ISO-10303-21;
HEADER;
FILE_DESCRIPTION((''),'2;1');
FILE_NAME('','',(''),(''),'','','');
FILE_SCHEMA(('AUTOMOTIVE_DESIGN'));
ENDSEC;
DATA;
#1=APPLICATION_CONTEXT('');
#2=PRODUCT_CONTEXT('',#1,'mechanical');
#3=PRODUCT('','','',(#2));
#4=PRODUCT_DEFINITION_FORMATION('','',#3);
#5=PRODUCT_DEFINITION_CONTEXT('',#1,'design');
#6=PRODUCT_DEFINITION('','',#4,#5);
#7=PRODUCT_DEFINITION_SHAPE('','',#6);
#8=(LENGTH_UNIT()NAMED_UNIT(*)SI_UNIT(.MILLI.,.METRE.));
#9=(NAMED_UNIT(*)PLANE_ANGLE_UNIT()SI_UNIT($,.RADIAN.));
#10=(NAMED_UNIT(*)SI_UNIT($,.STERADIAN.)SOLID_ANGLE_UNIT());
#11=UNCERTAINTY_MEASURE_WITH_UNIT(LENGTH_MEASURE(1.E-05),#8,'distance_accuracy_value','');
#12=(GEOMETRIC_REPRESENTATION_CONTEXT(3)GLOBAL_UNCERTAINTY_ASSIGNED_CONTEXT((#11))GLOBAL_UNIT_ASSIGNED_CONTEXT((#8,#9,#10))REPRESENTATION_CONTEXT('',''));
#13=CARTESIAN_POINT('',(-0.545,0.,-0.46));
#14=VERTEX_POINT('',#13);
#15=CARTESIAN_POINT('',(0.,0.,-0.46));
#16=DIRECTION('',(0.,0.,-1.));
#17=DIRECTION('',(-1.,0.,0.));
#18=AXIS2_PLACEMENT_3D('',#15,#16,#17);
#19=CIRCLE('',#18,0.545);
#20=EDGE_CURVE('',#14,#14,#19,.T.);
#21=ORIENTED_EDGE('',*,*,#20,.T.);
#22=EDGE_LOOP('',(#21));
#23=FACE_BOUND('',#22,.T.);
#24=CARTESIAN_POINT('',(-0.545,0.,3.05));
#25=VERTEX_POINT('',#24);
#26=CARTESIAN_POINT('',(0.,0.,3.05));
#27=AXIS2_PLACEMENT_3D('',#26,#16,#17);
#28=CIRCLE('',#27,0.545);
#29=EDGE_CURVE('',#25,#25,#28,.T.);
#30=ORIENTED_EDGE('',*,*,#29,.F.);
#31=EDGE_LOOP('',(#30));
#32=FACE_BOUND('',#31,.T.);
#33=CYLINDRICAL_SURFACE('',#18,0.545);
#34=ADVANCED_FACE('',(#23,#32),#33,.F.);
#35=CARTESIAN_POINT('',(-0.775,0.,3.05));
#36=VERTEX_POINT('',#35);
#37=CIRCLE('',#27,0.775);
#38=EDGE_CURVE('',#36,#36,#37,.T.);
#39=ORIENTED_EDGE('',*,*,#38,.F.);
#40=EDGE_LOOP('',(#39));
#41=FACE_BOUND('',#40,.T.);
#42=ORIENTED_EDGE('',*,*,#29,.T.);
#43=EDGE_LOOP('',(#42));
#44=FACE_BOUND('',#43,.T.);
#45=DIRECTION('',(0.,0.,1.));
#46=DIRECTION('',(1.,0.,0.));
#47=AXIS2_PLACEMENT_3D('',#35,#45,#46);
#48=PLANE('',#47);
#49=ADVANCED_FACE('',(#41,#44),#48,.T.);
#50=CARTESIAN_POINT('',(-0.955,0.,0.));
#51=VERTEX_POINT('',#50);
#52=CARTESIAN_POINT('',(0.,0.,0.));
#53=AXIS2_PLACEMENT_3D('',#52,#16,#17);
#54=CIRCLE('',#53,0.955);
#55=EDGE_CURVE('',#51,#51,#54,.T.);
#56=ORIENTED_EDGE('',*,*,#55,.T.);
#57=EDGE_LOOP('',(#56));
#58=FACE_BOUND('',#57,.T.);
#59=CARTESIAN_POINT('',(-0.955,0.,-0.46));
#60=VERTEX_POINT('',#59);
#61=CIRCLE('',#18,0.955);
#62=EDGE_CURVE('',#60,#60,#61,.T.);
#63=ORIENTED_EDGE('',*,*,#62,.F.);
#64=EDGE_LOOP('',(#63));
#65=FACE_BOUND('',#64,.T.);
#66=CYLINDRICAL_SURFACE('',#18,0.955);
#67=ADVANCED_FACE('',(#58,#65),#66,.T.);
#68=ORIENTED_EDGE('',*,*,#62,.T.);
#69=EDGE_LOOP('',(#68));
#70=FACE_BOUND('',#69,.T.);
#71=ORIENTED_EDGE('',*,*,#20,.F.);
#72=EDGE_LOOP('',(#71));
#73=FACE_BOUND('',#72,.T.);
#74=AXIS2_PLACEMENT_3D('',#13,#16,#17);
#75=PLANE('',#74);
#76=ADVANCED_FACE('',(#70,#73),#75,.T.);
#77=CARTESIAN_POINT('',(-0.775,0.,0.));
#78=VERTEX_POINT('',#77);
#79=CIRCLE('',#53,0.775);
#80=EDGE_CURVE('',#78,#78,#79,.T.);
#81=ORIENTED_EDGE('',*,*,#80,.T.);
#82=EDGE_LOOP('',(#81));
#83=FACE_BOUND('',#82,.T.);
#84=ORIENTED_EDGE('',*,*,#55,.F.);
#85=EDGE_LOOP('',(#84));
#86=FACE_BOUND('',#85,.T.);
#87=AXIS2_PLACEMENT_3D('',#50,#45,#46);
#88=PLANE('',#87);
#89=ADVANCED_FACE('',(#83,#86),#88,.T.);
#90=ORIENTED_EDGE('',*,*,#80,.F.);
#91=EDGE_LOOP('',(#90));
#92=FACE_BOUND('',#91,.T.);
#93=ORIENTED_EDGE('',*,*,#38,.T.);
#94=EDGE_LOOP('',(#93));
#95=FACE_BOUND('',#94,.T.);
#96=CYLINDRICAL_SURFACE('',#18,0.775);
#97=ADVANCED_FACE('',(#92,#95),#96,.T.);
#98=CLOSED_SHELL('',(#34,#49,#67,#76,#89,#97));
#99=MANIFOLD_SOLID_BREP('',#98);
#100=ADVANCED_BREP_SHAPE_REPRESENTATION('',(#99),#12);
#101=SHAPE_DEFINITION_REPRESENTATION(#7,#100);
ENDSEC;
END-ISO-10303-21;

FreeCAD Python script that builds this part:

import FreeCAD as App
import Part
import Sketcher

doc = App.newDocument("Part")
params = doc.addObject("Spreadsheet::Sheet", "Params")
for row, (alias, value) in enumerate([
    ("sketch1_width", "0.41 mm"),
    ("sketch1_width2", "0.18 mm"),
    ("sketch1_height", "0.46 mm"),
    ("sketch1_height2", "3.05 mm"),
    ("revolution_angle", "360 deg"),
], start=1):
    params.set(f"A{row}", alias)
    params.set(f"B{row}", "=" + value)
    params.setAlias(f"B{row}", alias)

body = doc.addObject("PartDesign::Body", "Body")

sketch1 = body.newObject("Sketcher::SketchObject", "Sketch")
sketch1.AttachmentSupport = (doc.getObject("XZ_Plane"), [""])
sketch1.MapMode = "FlatFace"
sketch1.addGeometry([
    Part.LineSegment(App.Vector(-0.545, -0.46, 0), App.Vector(-0.955, -0.46, 0)),
    Part.LineSegment(App.Vector(-0.955, -0.46, 0), App.Vector(-0.955, 0, 0)),
    Part.LineSegment(App.Vector(-0.955, 0, 0), App.Vector(-0.775, 0, 0)),
    Part.LineSegment(App.Vector(-0.775, 0, 0), App.Vector(-0.775, 3.05, 0)),
    Part.LineSegment(App.Vector(-0.775, 3.05, 0), App.Vector(-0.545, 3.05, 0)),
    Part.LineSegment(App.Vector(-0.545, 3.05, 0), App.Vector(-0.545, -0.46, 0)),
], False)
sketch1.addConstraint([
    Sketcher.Constraint("Coincident", 0, 2, 1, 1),
    Sketcher.Constraint("Coincident", 1, 2, 2, 1),
    Sketcher.Constraint("Coincident", 2, 2, 3, 1),
    Sketcher.Constraint("Coincident", 3, 2, 4, 1),
    Sketcher.Constraint("Coincident", 4, 2, 5, 1),
    Sketcher.Constraint("Coincident", 5, 2, 0, 1),
    Sketcher.Constraint("Horizontal", 0),
    Sketcher.Constraint("Vertical", 1),
    Sketcher.Constraint("Horizontal", 2),
    Sketcher.Constraint("Vertical", 3),
    Sketcher.Constraint("Horizontal", 4),
    Sketcher.Constraint("Vertical", 5),
    Sketcher.Constraint("PointOnObject", 1, 2, -1),
    Sketcher.Constraint("DistanceX", 0, 2, 0, 1, 0.41),
    Sketcher.Constraint("DistanceX", 2, 1, 2, 2, 0.18),
    Sketcher.Constraint("DistanceY", 1, 1, 1, 2, 0.46),
    Sketcher.Constraint("DistanceY", 3, 1, 3, 2, 3.05),
    Sketcher.Constraint("DistanceX", 0, 2, -1, 1, 0.955),
])
sketch1.setExpression("Constraints[13]", "Params.sketch1_width")
sketch1.setExpression("Constraints[14]", "Params.sketch1_width2")
sketch1.setExpression("Constraints[15]", "Params.sketch1_height")
sketch1.setExpression("Constraints[16]", "Params.sketch1_height2")
revolution = body.newObject("PartDesign::Revolution", "Revolution")
revolution.Profile = sketch1
revolution.ReferenceAxis = (sketch1, ["V_Axis"])
revolution.setExpression("Angle", "Params.revolution_angle")

doc.recompute()
